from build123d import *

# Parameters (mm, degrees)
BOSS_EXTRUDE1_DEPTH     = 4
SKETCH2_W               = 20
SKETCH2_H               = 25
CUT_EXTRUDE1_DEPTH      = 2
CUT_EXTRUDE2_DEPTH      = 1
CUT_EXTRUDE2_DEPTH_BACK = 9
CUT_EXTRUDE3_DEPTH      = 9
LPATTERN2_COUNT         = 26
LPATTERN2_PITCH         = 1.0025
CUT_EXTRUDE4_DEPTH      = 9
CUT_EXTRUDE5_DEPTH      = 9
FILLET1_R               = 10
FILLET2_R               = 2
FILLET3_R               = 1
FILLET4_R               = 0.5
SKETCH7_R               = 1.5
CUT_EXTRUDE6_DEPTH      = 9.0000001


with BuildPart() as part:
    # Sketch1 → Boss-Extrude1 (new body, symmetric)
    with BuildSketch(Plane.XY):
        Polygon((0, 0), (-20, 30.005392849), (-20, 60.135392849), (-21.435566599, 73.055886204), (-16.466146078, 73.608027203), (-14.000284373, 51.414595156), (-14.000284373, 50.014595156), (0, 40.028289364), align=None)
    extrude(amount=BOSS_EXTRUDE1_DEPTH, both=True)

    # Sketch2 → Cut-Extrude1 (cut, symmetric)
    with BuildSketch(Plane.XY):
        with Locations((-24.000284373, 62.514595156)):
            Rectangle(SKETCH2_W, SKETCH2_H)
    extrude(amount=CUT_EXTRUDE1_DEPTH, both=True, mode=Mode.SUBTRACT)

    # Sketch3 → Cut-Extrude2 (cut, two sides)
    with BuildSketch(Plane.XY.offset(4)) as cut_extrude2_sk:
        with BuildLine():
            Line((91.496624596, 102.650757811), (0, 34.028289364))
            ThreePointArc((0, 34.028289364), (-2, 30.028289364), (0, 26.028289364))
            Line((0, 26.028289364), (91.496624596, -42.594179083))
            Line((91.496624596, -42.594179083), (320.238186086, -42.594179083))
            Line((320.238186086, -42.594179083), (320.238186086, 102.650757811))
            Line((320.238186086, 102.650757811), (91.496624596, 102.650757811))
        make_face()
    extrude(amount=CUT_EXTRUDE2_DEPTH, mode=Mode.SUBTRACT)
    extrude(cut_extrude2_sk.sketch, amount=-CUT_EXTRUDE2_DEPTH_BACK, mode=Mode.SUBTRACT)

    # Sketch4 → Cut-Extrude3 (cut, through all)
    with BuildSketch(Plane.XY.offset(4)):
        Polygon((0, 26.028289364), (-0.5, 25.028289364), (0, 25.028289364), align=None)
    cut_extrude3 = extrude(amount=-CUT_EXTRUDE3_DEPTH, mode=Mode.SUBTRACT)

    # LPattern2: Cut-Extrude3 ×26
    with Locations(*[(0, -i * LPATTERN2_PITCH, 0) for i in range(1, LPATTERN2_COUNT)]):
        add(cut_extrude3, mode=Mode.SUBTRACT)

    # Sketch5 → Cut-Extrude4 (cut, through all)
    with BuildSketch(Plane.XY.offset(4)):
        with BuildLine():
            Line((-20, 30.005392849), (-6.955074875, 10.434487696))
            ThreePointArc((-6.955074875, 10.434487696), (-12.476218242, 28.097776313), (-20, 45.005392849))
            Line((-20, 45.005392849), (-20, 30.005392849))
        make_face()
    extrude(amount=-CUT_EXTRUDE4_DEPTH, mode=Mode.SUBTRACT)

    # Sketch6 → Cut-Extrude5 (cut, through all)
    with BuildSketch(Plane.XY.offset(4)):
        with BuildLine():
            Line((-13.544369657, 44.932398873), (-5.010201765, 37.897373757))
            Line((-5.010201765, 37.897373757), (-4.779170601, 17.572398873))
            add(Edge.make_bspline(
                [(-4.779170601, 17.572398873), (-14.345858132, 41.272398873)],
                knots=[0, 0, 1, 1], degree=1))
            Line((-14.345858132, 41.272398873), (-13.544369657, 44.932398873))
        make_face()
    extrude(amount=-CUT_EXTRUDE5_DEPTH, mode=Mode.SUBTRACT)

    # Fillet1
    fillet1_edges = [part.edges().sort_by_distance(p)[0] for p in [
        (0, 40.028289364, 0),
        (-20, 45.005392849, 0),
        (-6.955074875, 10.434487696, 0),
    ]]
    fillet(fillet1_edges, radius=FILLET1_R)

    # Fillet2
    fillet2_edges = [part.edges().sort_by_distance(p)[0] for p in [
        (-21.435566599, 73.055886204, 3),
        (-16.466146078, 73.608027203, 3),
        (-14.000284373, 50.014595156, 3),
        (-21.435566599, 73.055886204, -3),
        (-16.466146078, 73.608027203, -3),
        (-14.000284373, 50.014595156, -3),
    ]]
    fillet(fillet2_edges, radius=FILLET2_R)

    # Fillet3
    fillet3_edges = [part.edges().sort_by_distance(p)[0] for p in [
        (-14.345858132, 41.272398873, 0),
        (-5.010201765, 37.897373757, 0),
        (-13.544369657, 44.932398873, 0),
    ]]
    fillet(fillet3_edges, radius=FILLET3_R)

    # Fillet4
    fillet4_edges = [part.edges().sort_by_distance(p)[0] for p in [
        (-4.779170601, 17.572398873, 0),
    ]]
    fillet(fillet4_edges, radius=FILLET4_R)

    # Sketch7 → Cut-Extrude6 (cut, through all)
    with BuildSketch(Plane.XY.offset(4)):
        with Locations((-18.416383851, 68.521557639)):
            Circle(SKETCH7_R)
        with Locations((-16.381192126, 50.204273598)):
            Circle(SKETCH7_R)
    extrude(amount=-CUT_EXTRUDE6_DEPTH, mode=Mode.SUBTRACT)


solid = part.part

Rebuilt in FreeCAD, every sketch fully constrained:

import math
import FreeCAD as App
import Part
import Sketcher
from FreeCAD import Vector
Q = App.Units.Quantity


def edges_at(feature, points):
    """Names of the edges that pass closest to the given points."""
    edges = feature.Shape.Edges
    near = lambda p: min(range(len(edges)), key=lambda i: edges[i].distToShape(Part.Vertex(*p))[0])
    return sorted({f"Edge{near(p) + 1}" for p in points})

doc = App.newDocument("Part")
body = doc.addObject("PartDesign::Body", "Body")

# Sketch on XY plane
sketch1 = body.newObject("Sketcher::SketchObject", "Sketch")
sketch1.AttachmentSupport = (doc.getObject("XY_Plane"), [""])
sketch1.MapMode = "FlatFace"
sketch1.addGeometry([
    Part.LineSegment(Vector(-20, 30, 0), Vector(0, 0, 0)),  # 0
    Part.LineSegment(Vector(0, 0, 0), Vector(0, 40, 0)),  # 1
    Part.LineSegment(Vector(0, 40, 0), Vector(-14, 50, 0)),  # 2
    Part.LineSegment(Vector(-14, 50, 0), Vector(-14, 51.4, 0)),  # 3
    Part.LineSegment(Vector(-14, 51.4, 0), Vector(-16.5, 73.6, 0)),  # 4
    Part.LineSegment(Vector(-16.5, 73.6, 0), Vector(-21.4, 73.1, 0)),  # 5
    Part.LineSegment(Vector(-21.4, 73.1, 0), Vector(-20, 60.1, 0)),  # 6
    Part.LineSegment(Vector(-20, 60.1, 0), Vector(-20, 30, 0)),  # 7
], False)
sketch1.addConstraint([
    Sketcher.Constraint("Coincident", 0, 2, 1, 1),
    Sketcher.Constraint("Coincident", 1, 2, 2, 1),
    Sketcher.Constraint("Coincident", 2, 2, 3, 1),
    Sketcher.Constraint("Coincident", 3, 2, 4, 1),
    Sketcher.Constraint("Coincident", 4, 2, 5, 1),
    Sketcher.Constraint("Coincident", 5, 2, 6, 1),
    Sketcher.Constraint("Coincident", 6, 2, 7, 1),
    Sketcher.Constraint("Coincident", 7, 2, 0, 1),
    Sketcher.Constraint("Vertical", 1),
    Sketcher.Constraint("Vertical", 3),
    Sketcher.Constraint("Vertical", 7),
    Sketcher.Constraint("Coincident", 0, 2, -1, 1),
    Sketcher.Constraint("Perpendicular", 4, 5),
    Sketcher.Constraint("Perpendicular", 5, 6),
    Sketcher.Constraint("Distance", 5, Q("5 mm")),
    Sketcher.Constraint("Distance", 6, Q("13 mm")),
    Sketcher.Constraint("DistanceY", 3, 1, 3, 2, Q("1.4 mm")),
    Sketcher.Constraint("DistanceX", 6, 2, -1, 1, Q("20 mm")),
    Sketcher.Constraint("Angle", 2, Q("144.5 deg")),
    Sketcher.Constraint("DistanceY", 7, 2, 7, 1, Q("30.13 mm")),
    Sketcher.Constraint("Angle", 4, Q("96.34 deg")),
    Sketcher.Constraint("Distance", 0, Q("36.06 mm")),
    Sketcher.Constraint("Distance", 4, Q("22.33 mm")),
])
pad1 = body.newObject("PartDesign::Pad", "Pad")
pad1.Profile = sketch1
pad1.Length = 8
pad1.Midplane = True

# Sketch on XY plane
sketch2 = body.newObject("Sketcher::SketchObject", "Sketch001")
sketch2.AttachmentSupport = (doc.getObject("XY_Plane"), [""])
sketch2.MapMode = "FlatFace"
sketch2.addGeometry([
    Part.LineSegment(Vector(-34, 75, 0), Vector(-34, 50, 0)),
    Part.LineSegment(Vector(-34, 50, 0), Vector(-14, 50, 0)),
    Part.LineSegment(Vector(-14, 50, 0), Vector(-14, 75, 0)),
    Part.LineSegment(Vector(-14, 75, 0), Vector(-34, 75, 0)),
], False)
sketch2.addConstraint([
    Sketcher.Constraint("Coincident", 0, 2, 1, 1),
    Sketcher.Constraint("Coincident", 1, 2, 2, 1),
    Sketcher.Constraint("Coincident", 2, 2, 3, 1),
    Sketcher.Constraint("Coincident", 3, 2, 0, 1),
    Sketcher.Constraint("Vertical", 0),
    Sketcher.Constraint("Horizontal", 1),
    Sketcher.Constraint("Vertical", 2),
    Sketcher.Constraint("Horizontal", 3),
    Sketcher.Constraint("DistanceX", 1, 1, 1, 2, Q("20 mm")),
    Sketcher.Constraint("DistanceY", 0, 2, 0, 1, Q("25 mm")),
    Sketcher.Constraint("DistanceX", 0, 2, -1, 1, Q("34.000284 mm")),
    Sketcher.Constraint("DistanceY", -1, 1, 0, 2, Q("50.014595 mm")),
])
pocket1 = body.newObject("PartDesign::Pocket", "Pocket")
pocket1.Profile = sketch2
pocket1.Length = 4
pocket1.Midplane = True

# Sketch on XY plane
sketch3 = body.newObject("Sketcher::SketchObject", "Sketch002")
sketch3.AttachmentSupport = (doc.getObject("XY_Plane"), [""])
sketch3.MapMode = "FlatFace"
sketch3.AttachmentOffset = App.Placement(Vector(0, 0, 4), App.Rotation())
sketch3.addGeometry([
    Part.LineSegment(Vector(91, 103, 0), Vector(0, 34, 0)),  # 0
    Part.ArcOfCircle(Part.Circle(Vector(3, 30, 0), Vector(0, 0, 1), 5), math.radians(127), math.radians(233)),  # 1
    Part.LineSegment(Vector(0, 26, 0), Vector(91, -43, 0)),  # 2
    Part.LineSegment(Vector(91, -43, 0), Vector(320, -43, 0)),  # 3
    Part.LineSegment(Vector(320, -43, 0), Vector(320, 103, 0)),  # 4
    Part.LineSegment(Vector(320, 103, 0), Vector(91, 103, 0)),  # 5
], False)
sketch3.addConstraint([
    Sketcher.Constraint("Tangent", 0, 2, 1, 1),
    Sketcher.Constraint("Tangent", 1, 2, 2, 1),
    Sketcher.Constraint("Coincident", 2, 2, 3, 1),
    Sketcher.Constraint("Coincident", 3, 2, 4, 1),
    Sketcher.Constraint("Coincident", 4, 2, 5, 1),
    Sketcher.Constraint("Coincident", 5, 2, 0, 1),
    Sketcher.Constraint("Horizontal", 3),
    Sketcher.Constraint("Vertical", 4),
    Sketcher.Constraint("Horizontal", 5),
    Sketcher.Constraint("PointOnObject", 0, 2, -2),
    Sketcher.Constraint("PointOnObject", 1, 2, -2),
    Sketcher.Constraint("Vertical", 2, 2, 5, 2),
    Sketcher.Constraint("Radius", 1, Q("5 mm")),
    Sketcher.Constraint("DistanceX", -1, 1, 1, 3, Q("3 mm")),
    Sketcher.Constraint("DistanceX", 3, 1, 3, 2, Q("228.741561 mm")),
    Sketcher.Constraint("Distance", 0, Q("114.370781 mm")),
    Sketcher.Constraint("DistanceY", -1, 1, 1, 3, Q("30.028289 mm")),
])
pocket2 = body.newObject("PartDesign::Pocket", "Pocket001")
pocket2.Profile = sketch3
pocket2.Type = "ThroughAll"
pocket2.Midplane = True

# Sketch on XY plane
sketch4 = body.newObject("Sketcher::SketchObject", "Sketch003")
sketch4.AttachmentSupport = (doc.getObject("XY_Plane"), [""])
sketch4.MapMode = "FlatFace"
sketch4.AttachmentOffset = App.Placement(Vector(0, 0, 4), App.Rotation())
sketch4.addGeometry([
    Part.LineSegment(Vector(0, 26, 0), Vector(-0.5, 25, 0)),
    Part.LineSegment(Vector(-0.5, 25, 0), Vector(0, 25, 0)),
    Part.LineSegment(Vector(0, 25, 0), Vector(0, 26, 0)),
], False)
sketch4.addConstraint([
    Sketcher.Constraint("Coincident", 0, 2, 1, 1),
    Sketcher.Constraint("Coincident", 1, 2, 2, 1),
    Sketcher.Constraint("Coincident", 2, 2, 0, 1),
    Sketcher.Constraint("Horizontal", 1),
    Sketcher.Constraint("Vertical", 2),
    Sketcher.Constraint("PointOnObject", 1, 2, -2),
    Sketcher.Constraint("DistanceY", 2, 1, 2, 2, Q("1 mm")),
    Sketcher.Constraint("DistanceX", 1, 1, 1, 2, Q("0.5 mm")),
    Sketcher.Constraint("DistanceY", -1, 1, 0, 2, Q("25.028289 mm")),
])
pocket3 = body.newObject("PartDesign::Pocket", "Pocket002")
pocket3.Profile = sketch4
pocket3.Type = "ThroughAll"
doc.recompute()

linearpattern = body.newObject("PartDesign::LinearPattern", "LinearPattern")
linearpattern.Originals = [pocket3]
linearpattern.Direction = (doc.getObject("Y_Axis"), [""])
linearpattern.Mode = "offset"
linearpattern.Offset = 1.0025
linearpattern.Occurrences = 26
linearpattern.Reversed = True
body.Tip = linearpattern

# Sketch on XY plane
sketch5 = body.newObject("Sketcher::SketchObject", "Sketch004")
sketch5.AttachmentSupport = (doc.getObject("XY_Plane"), [""])
sketch5.MapMode = "FlatFace"
sketch5.AttachmentOffset = App.Placement(Vector(0, 0, 4), App.Rotation())
sketch5.addGeometry([
    Part.LineSegment(Vector(-20, 30, 0), Vector(-7, 10, 0)),
    Part.ArcOfCircle(Part.Circle(Vector(-162, -28, 0), Vector(0, 0, 1), 160), math.radians(14.04), math.radians(27.3)),
    Part.LineSegment(Vector(-20, 45, 0), Vector(-20, 30, 0)),
], False)
sketch5.addConstraint([
    Sketcher.Constraint("Coincident", 0, 2, 1, 1),
    Sketcher.Constraint("Coincident", 1, 2, 2, 1),
    Sketcher.Constraint("Coincident", 2, 2, 0, 1),
    Sketcher.Constraint("Vertical", 2),
    Sketcher.Constraint("Radius", 1, Q("160 mm")),
    Sketcher.Constraint("DistanceY", 2, 2, 2, 1, Q("15 mm")),
    Sketcher.Constraint("DistanceX", 1, 2, -1, 1, Q("20 mm")),
    Sketcher.Constraint("Distance", 0, Q("23.52 mm")),
    Sketcher.Constraint("DistanceX", 1, 3, 0, 2, Q("155.218419 mm")),
    Sketcher.Constraint("DistanceY", 1, 3, -1, 1, Q("28.388733 mm")),
])
pocket4 = body.newObject("PartDesign::Pocket", "Pocket003")
pocket4.Profile = sketch5
pocket4.Type = "ThroughAll"

# Sketch on XY plane
sketch6 = body.newObject("Sketcher::SketchObject", "Sketch005")
sketch6.AttachmentSupport = (doc.getObject("XY_Plane"), [""])
sketch6.MapMode = "FlatFace"
sketch6.AttachmentOffset = App.Placement(Vector(0, 0, 4), App.Rotation())
sketch6.addGeometry([
    Part.LineSegment(Vector(-5.010202, 37.897374, 0), Vector(-13.54437, 44.932399, 0)),
    Part.LineSegment(Vector(-13.54437, 44.932399, 0), Vector(-14.345858, 41.272399, 0)),
    Part.BSplineCurve([Vector(-4.779171, 17.572399, 0), Vector(-14.345858, 41.272399, 0)], [2, 2], [0, 1], False, 1, [1, 1], False),
    Part.LineSegment(Vector(-4.779171, 17.572399, 0), Vector(-5.010202, 37.897374, 0)),
], False)
sketch6.addConstraint([
    Sketcher.Constraint("Block", 2),
    Sketcher.Constraint("Coincident", 0, 2, 1, 1),
    Sketcher.Constraint("Coincident", 1, 2, 2, 2),
    Sketcher.Constraint("Coincident", 2, 1, 3, 1),
    Sketcher.Constraint("Coincident", 3, 2, 0, 1),
    Sketcher.Constraint("Angle", 0, Q("140.5 deg")),
    Sketcher.Constraint("Distance", 0, Q("11.06 mm")),
    Sketcher.Constraint("DistanceY", 1, 2, 0, 2, Q("3.66 mm")),
    Sketcher.Constraint("DistanceX", 3, 2, -1, 1, Q("5.010202 mm")),
])
pocket5 = body.newObject("PartDesign::Pocket", "Pocket004")
pocket5.Profile = sketch6
pocket5.Type = "ThroughAll"
doc.recompute()

fillet = body.newObject("PartDesign::Fillet", "Fillet")
fillet.Base = (pocket5, edges_at(pocket5, [(0, 40.028, 0), (-20, 45.005, 0), (-6.955, 10.434, 0)]))
fillet.Radius = 10
doc.recompute()

fillet2 = body.newObject("PartDesign::Fillet", "Fillet001")
fillet2.Base = (fillet, edges_at(fillet, [
    (-21.436, 73.056, 3),
    (-16.466, 73.608, 3),
    (-14, 50.015, 3),
    (-21.436, 73.056, -3),
    (-16.466, 73.608, -3),
    (-14, 50.015, -3),
]))
fillet2.Radius = 2
doc.recompute()

fillet3 = body.newObject("PartDesign::Fillet", "Fillet002")
fillet3.Base = (fillet2, edges_at(fillet2, [(-14.346, 41.272, 0), (-5.01, 37.897, 0), (-13.544, 44.932, 0)]))
fillet3.Radius = 1
doc.recompute()

fillet4 = body.newObject("PartDesign::Fillet", "Fillet003")
fillet4.Base = (fillet3, edges_at(fillet3, [(-4.779, 17.572, 0)]))
fillet4.Radius = 0.5

# Sketch on XY plane
sketch7 = body.newObject("Sketcher::SketchObject", "Sketch006")
sketch7.AttachmentSupport = (doc.getObject("XY_Plane"), [""])
sketch7.MapMode = "FlatFace"
sketch7.AttachmentOffset = App.Placement(Vector(0, 0, 4), App.Rotation())
sketch7.addGeometry([
    Part.Circle(Vector(-18.4, 68.5, 0), Vector(0, 0, 1), 1.5),
    Part.Circle(Vector(-16.4, 50.2, 0), Vector(0, 0, 1), 1.5),
], False)
sketch7.addConstraint([
    Sketcher.Constraint("Equal", 0, 1),
    Sketcher.Constraint("Diameter", 0, Q("3 mm")),
    Sketcher.Constraint("DistanceX", 0, 3, 1, 3, Q("2.035192 mm")),
    Sketcher.Constraint("DistanceX", 0, 3, -1, 1, Q("18.416384 mm")),
    Sketcher.Constraint("DistanceY", -1, 1, 0, 3, Q("68.521558 mm")),
    Sketcher.Constraint("DistanceY", -1, 1, 1, 3, Q("50.204274 mm")),
])
pocket6 = body.newObject("PartDesign::Pocket", "Pocket005")
pocket6.Profile = sketch7
pocket6.Type = "ThroughAll"

doc.recompute()
